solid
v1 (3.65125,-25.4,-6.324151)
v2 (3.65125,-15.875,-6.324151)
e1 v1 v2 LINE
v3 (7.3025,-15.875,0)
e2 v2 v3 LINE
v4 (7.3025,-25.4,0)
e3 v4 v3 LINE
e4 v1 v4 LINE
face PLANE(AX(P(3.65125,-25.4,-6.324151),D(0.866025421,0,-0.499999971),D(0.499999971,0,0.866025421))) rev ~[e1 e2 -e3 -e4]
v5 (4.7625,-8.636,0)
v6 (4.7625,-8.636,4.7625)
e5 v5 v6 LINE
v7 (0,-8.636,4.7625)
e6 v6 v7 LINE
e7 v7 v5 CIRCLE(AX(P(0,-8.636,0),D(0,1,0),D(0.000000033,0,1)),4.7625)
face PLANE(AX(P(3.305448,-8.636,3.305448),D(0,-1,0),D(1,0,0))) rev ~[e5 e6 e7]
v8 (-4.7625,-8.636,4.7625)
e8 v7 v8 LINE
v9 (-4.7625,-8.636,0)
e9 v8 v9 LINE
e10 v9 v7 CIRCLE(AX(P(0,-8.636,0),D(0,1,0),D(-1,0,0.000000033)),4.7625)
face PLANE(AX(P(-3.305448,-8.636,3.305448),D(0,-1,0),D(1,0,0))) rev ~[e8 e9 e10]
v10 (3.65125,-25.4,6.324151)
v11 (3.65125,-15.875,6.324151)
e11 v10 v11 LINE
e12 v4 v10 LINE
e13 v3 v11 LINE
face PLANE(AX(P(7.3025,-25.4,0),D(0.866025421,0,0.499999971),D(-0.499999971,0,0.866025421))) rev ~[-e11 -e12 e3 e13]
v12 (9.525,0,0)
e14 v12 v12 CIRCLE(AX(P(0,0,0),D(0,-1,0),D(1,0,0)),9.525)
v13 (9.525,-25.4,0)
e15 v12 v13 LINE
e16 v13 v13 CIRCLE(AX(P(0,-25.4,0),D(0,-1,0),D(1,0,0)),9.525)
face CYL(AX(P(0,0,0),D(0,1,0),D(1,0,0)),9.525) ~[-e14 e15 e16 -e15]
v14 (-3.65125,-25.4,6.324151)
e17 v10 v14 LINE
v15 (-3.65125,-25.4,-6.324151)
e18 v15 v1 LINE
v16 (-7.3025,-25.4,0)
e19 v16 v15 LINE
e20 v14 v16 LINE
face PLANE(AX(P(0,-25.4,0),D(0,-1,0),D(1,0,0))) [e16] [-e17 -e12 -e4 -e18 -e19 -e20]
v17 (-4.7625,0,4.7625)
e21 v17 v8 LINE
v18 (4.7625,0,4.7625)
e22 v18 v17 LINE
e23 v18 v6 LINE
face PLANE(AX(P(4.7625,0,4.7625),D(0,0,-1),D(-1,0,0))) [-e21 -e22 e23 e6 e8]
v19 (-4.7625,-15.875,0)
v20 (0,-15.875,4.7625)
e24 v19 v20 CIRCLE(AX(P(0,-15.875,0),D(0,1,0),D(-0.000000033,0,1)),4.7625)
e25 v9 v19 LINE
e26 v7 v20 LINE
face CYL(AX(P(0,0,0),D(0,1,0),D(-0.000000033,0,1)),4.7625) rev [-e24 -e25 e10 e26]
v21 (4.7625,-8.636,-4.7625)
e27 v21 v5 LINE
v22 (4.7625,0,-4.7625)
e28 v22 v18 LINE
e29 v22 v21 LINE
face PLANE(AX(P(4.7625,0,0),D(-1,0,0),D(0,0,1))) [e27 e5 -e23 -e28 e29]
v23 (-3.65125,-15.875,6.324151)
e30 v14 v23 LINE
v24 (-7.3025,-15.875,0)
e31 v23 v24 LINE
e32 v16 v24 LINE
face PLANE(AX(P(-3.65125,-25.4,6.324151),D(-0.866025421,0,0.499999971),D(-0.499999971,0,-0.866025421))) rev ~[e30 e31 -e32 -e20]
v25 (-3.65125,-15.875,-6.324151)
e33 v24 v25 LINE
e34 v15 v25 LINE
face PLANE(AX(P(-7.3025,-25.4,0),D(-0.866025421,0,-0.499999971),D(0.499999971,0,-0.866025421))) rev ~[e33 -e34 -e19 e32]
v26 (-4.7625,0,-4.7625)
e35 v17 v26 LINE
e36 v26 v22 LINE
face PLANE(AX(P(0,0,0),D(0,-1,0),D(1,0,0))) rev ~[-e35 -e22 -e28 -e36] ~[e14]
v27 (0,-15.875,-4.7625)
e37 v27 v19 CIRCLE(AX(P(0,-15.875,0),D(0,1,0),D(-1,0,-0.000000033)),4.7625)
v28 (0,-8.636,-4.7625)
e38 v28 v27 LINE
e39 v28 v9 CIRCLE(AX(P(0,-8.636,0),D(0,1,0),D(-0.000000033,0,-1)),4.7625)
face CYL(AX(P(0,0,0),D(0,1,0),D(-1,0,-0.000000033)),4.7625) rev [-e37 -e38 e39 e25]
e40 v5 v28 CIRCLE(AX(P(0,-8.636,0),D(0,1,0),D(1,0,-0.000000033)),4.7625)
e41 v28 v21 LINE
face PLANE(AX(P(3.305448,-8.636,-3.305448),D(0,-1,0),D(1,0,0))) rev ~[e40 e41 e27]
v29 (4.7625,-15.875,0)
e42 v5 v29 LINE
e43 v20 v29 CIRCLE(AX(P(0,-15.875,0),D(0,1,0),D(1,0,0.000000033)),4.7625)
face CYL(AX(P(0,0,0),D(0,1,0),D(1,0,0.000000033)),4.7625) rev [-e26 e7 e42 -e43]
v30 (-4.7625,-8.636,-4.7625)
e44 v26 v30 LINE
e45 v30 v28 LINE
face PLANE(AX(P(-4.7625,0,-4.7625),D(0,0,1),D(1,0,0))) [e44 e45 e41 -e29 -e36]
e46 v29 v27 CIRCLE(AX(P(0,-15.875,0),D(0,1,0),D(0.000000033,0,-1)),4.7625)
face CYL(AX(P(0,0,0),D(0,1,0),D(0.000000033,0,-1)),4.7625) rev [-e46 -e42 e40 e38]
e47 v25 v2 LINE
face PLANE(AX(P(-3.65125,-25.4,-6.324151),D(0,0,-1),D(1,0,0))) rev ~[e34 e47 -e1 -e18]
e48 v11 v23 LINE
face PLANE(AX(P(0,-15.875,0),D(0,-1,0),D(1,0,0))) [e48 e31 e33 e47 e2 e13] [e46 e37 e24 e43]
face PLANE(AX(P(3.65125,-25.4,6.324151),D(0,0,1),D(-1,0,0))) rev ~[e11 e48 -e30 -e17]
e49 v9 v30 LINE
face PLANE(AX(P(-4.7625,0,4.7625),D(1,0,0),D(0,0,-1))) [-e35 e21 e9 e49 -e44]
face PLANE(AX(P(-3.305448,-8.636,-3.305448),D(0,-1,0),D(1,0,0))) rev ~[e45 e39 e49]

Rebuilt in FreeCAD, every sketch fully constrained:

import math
import FreeCAD as App
import Part
import Sketcher
from FreeCAD import Vector
Q = App.Units.Quantity

doc = App.newDocument("Part")
body = doc.addObject("PartDesign::Body", "Body")

# Sketch on XZ plane
sketch1 = body.newObject("Sketcher::SketchObject", "Sketch")
sketch1.AttachmentSupport = (doc.getObject("XZ_Plane"), [""])
sketch1.MapMode = "FlatFace"
sketch1.addGeometry(Part.Circle(Vector(0, 0, 0), Vector(0, 0, 1), 10), False)
sketch1.addConstraint([
    Sketcher.Constraint("Coincident", 0, 3, -1, 1),
    Sketcher.Constraint("Diameter", 0, Q("0.75 in")),
])
pad1 = body.newObject("PartDesign::Pad", "Pad")
pad1.Profile = sketch1
pad1.Length = Q("1 in")

# Sketch on XZ plane
sketch2 = body.newObject("Sketcher::SketchObject", "Sketch001")
sketch2.AttachmentSupport = (doc.getObject("XZ_Plane"), [""])
sketch2.MapMode = "FlatFace"
sketch2.addGeometry([
    Part.ArcOfCircle(Part.Circle(Vector(0, 0, 0), Vector(0, 0, 1), 4.8), math.radians(0), math.radians(90)),
    Part.ArcOfCircle(Part.Circle(Vector(0, 0, 0), Vector(0, 0, 1), 4.8), math.radians(90), math.radians(180)),
    Part.ArcOfCircle(Part.Circle(Vector(0, 0, 0), Vector(0, 0, 1), 4.8), math.radians(-180), math.radians(-90)),
    Part.ArcOfCircle(Part.Circle(Vector(0, 0, 0), Vector(0, 0, 1), 4.8), math.radians(-90), math.radians(0)),
], False)
sketch2.addConstraint([
    Sketcher.Constraint("Tangent", 0, 2, 1, 1),
    Sketcher.Constraint("Tangent", 1, 2, 2, 1),
    Sketcher.Constraint("Tangent", 2, 2, 3, 1),
    Sketcher.Constraint("Tangent", 3, 2, 0, 1),
    Sketcher.Constraint("Coincident", 0, 3, -1, 1),
    Sketcher.Constraint("Equal", 0, 1),
    Sketcher.Constraint("PointOnObject", 0, 2, -2),
    Sketcher.Constraint("PointOnObject", 1, 2, -1),
    Sketcher.Constraint("PointOnObject", 2, 2, -2),
    Sketcher.Constraint("PointOnObject", 3, 2, -1),
    Sketcher.Constraint("Radius", 0, Q("0.1875 in")),
])
pocket1 = body.newObject("PartDesign::Pocket", "Pocket")
pocket1.Profile = sketch2
pocket1.Type = "ThroughAll"
pocket1.Reversed = True

# Sketch on XZ plane
sketch3 = body.newObject("Sketcher::SketchObject", "Sketch002")
sketch3.AttachmentSupport = (doc.getObject("XZ_Plane"), [""])
sketch3.MapMode = "FlatFace"
sketch3.addGeometry([
    Part.ArcOfCircle(Part.Circle(Vector(0, 0, 0), Vector(0, 0, 1), 4.8), math.radians(90), math.radians(180)),  # 0
    Part.LineSegment(Vector(0, 4.8, 0), Vector(-4.8, 4.8, 0)),  # 1
    Part.LineSegment(Vector(-4.8, 4.8, 0), Vector(-4.8, 0, 0)),  # 2
    Part.LineSegment(Vector(4.8, 0, 0), Vector(4.8, 4.8, 0)),  # 3
    Part.LineSegment(Vector(4.8, 4.8, 0), Vector(0, 4.8, 0)),  # 4
    Part.ArcOfCircle(Part.Circle(Vector(0, 0, 0), Vector(0, 0, 1), 4.8), math.radians(0), math.radians(90)),  # 5
    Part.ArcOfCircle(Part.Circle(Vector(0, 0, 0), Vector(0, 0, 1), 4.8), math.radians(-180), math.radians(-90)),  # 6
    Part.LineSegment(Vector(-4.8, 0, 0), Vector(-4.8, -4.8, 0)),  # 7
    Part.LineSegment(Vector(-4.8, -4.8, 0), Vector(0, -4.8, 0)),  # 8
    Part.LineSegment(Vector(4.8, -4.8, 0), Vector(4.8, 0, 0)),  # 9
    Part.ArcOfCircle(Part.Circle(Vector(0, 0, 0), Vector(0, 0, 1), 4.8), math.radians(-90), math.radians(0)),  # 10
    Part.LineSegment(Vector(0, -4.8, 0), Vector(4.8, -4.8, 0)),  # 11
], False)
sketch3.addConstraint([
    Sketcher.Constraint("Tangent", 0, 1, 1, 1),
    Sketcher.Constraint("Coincident", 1, 2, 2, 1),
    Sketcher.Constraint("Tangent", 2, 2, 0, 2),
    Sketcher.Constraint("Coincident", 3, 2, 4, 1),
    Sketcher.Constraint("Tangent", 4, 2, 5, 2),
    Sketcher.Constraint("Tangent", 5, 1, 3, 1),
    Sketcher.Constraint("Tangent", 6, 1, 7, 1),
    Sketcher.Constraint("Coincident", 7, 2, 8, 1),
    Sketcher.Constraint("Tangent", 8, 2, 6, 2),
    Sketcher.Constraint("Tangent", 9, 2, 10, 2),
    Sketcher.Constraint("Tangent", 10, 1, 11, 1),
    Sketcher.Constraint("Coincident", 11, 2, 9, 1),
    Sketcher.Constraint("Horizontal", 1),
    Sketcher.Constraint("Vertical", 2),
    Sketcher.Constraint("Vertical", 3),
    Sketcher.Constraint("Horizontal", 4),
    Sketcher.Constraint("Vertical", 7),
    Sketcher.Constraint("Horizontal", 8),
    Sketcher.Constraint("Vertical", 9),
    Sketcher.Constraint("Horizontal", 11),
    Sketcher.Constraint("Coincident", 0, 3, -1, 1),
    Sketcher.Constraint("Coincident", 5, 3, -1, 1),
    Sketcher.Constraint("Coincident", 6, 3, -1, 1),
    Sketcher.Constraint("Coincident", 10, 3, -1, 1),
    Sketcher.Constraint("Equal", 0, 5),
    Sketcher.Constraint("Equal", 5, 6),
    Sketcher.Constraint("Equal", 6, 10),
    Sketcher.Constraint("Radius", 0, Q("0.1875 in")),
])
pocket2 = body.newObject("PartDesign::Pocket", "Pocket001")
pocket2.Profile = sketch3
pocket2.Length = Q("0.34 in")
pocket2.Reversed = True

# Sketch on XZ plane
sketch4 = body.newObject("Sketcher::SketchObject", "Sketch003")
sketch4.AttachmentSupport = (doc.getObject("XZ_Plane"), [""])
sketch4.MapMode = "FlatFace"
sketch4.AttachmentOffset = App.Placement(Vector(0, 0, 1 * 25.4), App.Rotation())
sketch4.addGeometry([
    Part.LineSegment(Vector(4, 6, 0), Vector(-4, 6, 0)),  # 0
    Part.LineSegment(Vector(-4, 6, 0), Vector(-7, 0, 0)),  # 1
    Part.LineSegment(Vector(-7, 0, 0), Vector(-4, -6, 0)),  # 2
    Part.LineSegment(Vector(-4, -6, 0), Vector(4, -6, 0)),  # 3
    Part.LineSegment(Vector(4, -6, 0), Vector(7, 0, 0)),  # 4
    Part.LineSegment(Vector(7, 0, 0), Vector(4, 6, 0)),  # 5
], False)
sketch4.addConstraint([
    Sketcher.Constraint("Coincident", 0, 2, 1, 1),
    Sketcher.Constraint("Coincident", 1, 2, 2, 1),
    Sketcher.Constraint("Coincident", 2, 2, 3, 1),
    Sketcher.Constraint("Coincident", 3, 2, 4, 1),
    Sketcher.Constraint("Coincident", 4, 2, 5, 1),
    Sketcher.Constraint("Coincident", 5, 2, 0, 1),
    Sketcher.Constraint("Horizontal", 0),
    Sketcher.Constraint("Horizontal", 3),
    Sketcher.Constraint("Symmetric", 0, 2, 3, 2, -1, 1),
    Sketcher.Constraint("Symmetric", 1, 2, 4, 2, -1, 1),
    Sketcher.Constraint("PointOnObject", 1, 2, -1),
    Sketcher.Constraint("Parallel", 2, 5),
    Sketcher.Constraint("Vertical", 0, 2, 2, 2),
    Sketcher.Constraint("Angle", 1, Q("-119.999998 deg")),
    Sketcher.Constraint("DistanceX", 0, 2, 0, 1, Q("0.2875 in")),
    Sketcher.Constraint("DistanceX", 1, 2, 4, 2, Q("0.575 in")),
])
pocket3 = body.newObject("PartDesign::Pocket", "Pocket002")
pocket3.Profile = sketch4
pocket3.Length = Q("0.375 in")

doc.recompute()
